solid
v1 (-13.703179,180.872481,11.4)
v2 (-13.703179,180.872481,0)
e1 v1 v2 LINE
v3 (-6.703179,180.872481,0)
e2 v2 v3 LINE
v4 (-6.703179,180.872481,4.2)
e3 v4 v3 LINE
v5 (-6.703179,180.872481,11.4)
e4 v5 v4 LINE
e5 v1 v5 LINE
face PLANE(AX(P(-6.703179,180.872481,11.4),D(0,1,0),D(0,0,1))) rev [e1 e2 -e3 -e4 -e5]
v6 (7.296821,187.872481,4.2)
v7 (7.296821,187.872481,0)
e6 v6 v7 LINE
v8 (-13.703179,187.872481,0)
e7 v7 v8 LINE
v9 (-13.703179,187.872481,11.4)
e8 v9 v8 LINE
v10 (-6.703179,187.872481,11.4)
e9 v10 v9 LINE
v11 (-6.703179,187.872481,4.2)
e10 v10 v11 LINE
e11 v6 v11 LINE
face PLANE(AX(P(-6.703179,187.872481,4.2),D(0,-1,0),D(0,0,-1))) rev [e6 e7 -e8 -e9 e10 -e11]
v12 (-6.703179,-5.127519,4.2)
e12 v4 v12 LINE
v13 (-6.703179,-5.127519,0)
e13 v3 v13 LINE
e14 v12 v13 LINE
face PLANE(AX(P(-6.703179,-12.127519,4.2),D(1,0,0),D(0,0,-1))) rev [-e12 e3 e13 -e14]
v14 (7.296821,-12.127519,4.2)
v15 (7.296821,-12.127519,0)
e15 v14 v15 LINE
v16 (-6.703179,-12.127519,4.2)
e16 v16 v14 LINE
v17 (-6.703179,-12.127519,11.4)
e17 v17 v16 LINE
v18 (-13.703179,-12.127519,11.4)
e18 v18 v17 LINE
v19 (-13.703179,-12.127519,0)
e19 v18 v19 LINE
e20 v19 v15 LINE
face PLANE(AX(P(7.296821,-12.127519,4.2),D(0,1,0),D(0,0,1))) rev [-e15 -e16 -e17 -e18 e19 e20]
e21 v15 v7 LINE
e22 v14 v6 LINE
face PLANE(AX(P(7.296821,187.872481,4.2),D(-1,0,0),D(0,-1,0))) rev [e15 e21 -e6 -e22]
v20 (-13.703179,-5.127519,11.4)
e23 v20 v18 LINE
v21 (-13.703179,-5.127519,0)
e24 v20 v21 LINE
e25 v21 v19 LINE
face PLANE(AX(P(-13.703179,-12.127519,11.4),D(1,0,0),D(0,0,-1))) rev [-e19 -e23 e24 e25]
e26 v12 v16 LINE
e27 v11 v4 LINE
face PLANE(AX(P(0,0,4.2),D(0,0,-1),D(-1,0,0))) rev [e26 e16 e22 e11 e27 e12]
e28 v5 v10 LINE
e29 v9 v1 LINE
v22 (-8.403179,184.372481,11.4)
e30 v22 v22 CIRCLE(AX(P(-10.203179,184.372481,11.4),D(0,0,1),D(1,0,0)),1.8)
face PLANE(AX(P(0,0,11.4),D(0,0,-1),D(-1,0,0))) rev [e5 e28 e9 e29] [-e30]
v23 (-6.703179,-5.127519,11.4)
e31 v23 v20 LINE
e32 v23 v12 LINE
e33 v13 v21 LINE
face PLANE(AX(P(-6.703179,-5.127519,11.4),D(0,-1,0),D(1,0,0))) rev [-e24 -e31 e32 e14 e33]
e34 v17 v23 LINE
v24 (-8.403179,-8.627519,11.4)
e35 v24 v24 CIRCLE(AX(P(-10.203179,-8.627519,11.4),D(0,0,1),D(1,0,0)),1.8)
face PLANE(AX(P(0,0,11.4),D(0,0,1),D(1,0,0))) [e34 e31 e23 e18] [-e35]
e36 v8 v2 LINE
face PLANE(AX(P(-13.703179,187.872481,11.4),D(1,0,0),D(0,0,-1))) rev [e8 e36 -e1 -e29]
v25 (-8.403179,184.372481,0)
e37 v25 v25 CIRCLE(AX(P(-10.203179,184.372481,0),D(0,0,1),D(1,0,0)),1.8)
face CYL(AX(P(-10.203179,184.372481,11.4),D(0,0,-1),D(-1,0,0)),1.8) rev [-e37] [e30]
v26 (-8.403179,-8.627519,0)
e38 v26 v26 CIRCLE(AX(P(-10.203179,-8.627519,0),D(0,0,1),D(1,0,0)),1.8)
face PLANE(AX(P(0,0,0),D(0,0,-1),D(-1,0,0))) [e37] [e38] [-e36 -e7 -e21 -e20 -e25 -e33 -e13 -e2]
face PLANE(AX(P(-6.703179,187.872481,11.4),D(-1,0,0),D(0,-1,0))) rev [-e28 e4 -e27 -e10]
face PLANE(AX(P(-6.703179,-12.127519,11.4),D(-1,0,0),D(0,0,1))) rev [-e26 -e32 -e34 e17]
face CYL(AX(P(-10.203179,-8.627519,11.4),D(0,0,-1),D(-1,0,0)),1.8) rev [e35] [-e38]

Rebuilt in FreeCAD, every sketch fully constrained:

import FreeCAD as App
import Part
import Sketcher
Q = App.Units.Quantity

doc = App.newDocument("Part")
params = doc.addObject("Spreadsheet::Sheet", "Params")
for row, (alias, value) in enumerate([
    ("sketch1_width", "14 mm"),
    ("sketch1_height", "200 mm"),
    ("pad1_length", "4.2 mm"),
    ("sketch2_diameter", "3.6 mm"),
    ("sketch2_width", "7 mm"),
    ("pad2_length", "11.4 mm"),
], start=1):
    params.set(f"A{row}", alias)
    params.set(f"B{row}", "=" + value)
    params.setAlias(f"B{row}", alias)

body = doc.addObject("PartDesign::Body", "Body")

# Sketch on XY plane
sketch1 = body.newObject("Sketcher::SketchObject", "Sketch")
sketch1.AttachmentSupport = (doc.getObject("XY_Plane"), [""])
sketch1.MapMode = "FlatFace"
sketch1.addGeometry([
    Part.LineSegment(App.Vector(-6.703179, 187.872481, 0), App.Vector(-6.703179, -12.127519, 0)),
    Part.LineSegment(App.Vector(-6.703179, -12.127519, 0), App.Vector(7.296821, -12.127519, 0)),
    Part.LineSegment(App.Vector(7.296821, -12.127519, 0), App.Vector(7.296821, 187.872481, 0)),
    Part.LineSegment(App.Vector(7.296821, 187.872481, 0), App.Vector(-6.703179, 187.872481, 0)),
], False)
sketch1.addConstraint([
    Sketcher.Constraint("Coincident", 0, 2, 1, 1),
    Sketcher.Constraint("Coincident", 1, 2, 2, 1),
    Sketcher.Constraint("Coincident", 2, 2, 3, 1),
    Sketcher.Constraint("Coincident", 3, 2, 0, 1),
    Sketcher.Constraint("Vertical", 0),
    Sketcher.Constraint("Horizontal", 1),
    Sketcher.Constraint("Vertical", 2),
    Sketcher.Constraint("Horizontal", 3),
    Sketcher.Constraint("DistanceX", 1, 1, 1, 2, Q("14 mm")),
    Sketcher.Constraint("DistanceY", 0, 2, 0, 1, Q("200 mm")),
    Sketcher.Constraint("DistanceX", 0, 2, -1, 1, Q("6.703179 mm")),
    Sketcher.Constraint("DistanceY", 0, 2, -1, 1, Q("12.127519 mm")),
])
sketch1.setExpression("Constraints[8]", "Params.sketch1_width")
sketch1.setExpression("Constraints[9]", "Params.sketch1_height")
pad1 = body.newObject("PartDesign::Pad", "Pad")
pad1.Profile = sketch1
pad1.setExpression("Length", "Params.pad1_length")

# Sketch on XY plane
sketch2 = body.newObject("Sketcher::SketchObject", "Sketch001")
sketch2.AttachmentSupport = (doc.getObject("XY_Plane"), [""])
sketch2.MapMode = "FlatFace"
sketch2.addGeometry([
    Part.LineSegment(App.Vector(-13.703179, -5.127519, 0), App.Vector(-13.703179, -12.127519, 0)),  # 0
    Part.LineSegment(App.Vector(-13.703179, -12.127519, 0), App.Vector(-6.703179, -12.127519, 0)),  # 1
    Part.LineSegment(App.Vector(-6.703179, -12.127519, 0), App.Vector(-6.703179, -5.127519, 0)),  # 2
    Part.LineSegment(App.Vector(-6.703179, -5.127519, 0), App.Vector(-13.703179, -5.127519, 0)),  # 3
    Part.Circle(App.Vector(-10.203179, -8.627519, 0), App.Vector(0, 0, 1), 1.8),  # 4
    Part.LineSegment(App.Vector(-13.703179, 187.872481, 0), App.Vector(-13.703179, 180.872481, 0)),  # 5
    Part.LineSegment(App.Vector(-13.703179, 180.872481, 0), App.Vector(-6.703179, 180.872481, 0)),  # 6
    Part.LineSegment(App.Vector(-6.703179, 180.872481, 0), App.Vector(-6.703179, 187.872481, 0)),  # 7
    Part.LineSegment(App.Vector(-6.703179, 187.872481, 0), App.Vector(-13.703179, 187.872481, 0)),  # 8
    Part.Circle(App.Vector(-10.203179, 184.372481, 0), App.Vector(0, 0, 1), 1.8),  # 9
], False)
sketch2.addConstraint([
    Sketcher.Constraint("Coincident", 0, 2, 1, 1),
    Sketcher.Constraint("Coincident", 1, 2, 2, 1),
    Sketcher.Constraint("Coincident", 2, 2, 3, 1),
    Sketcher.Constraint("Coincident", 3, 2, 0, 1),
    Sketcher.Constraint("Coincident", 5, 2, 6, 1),
    Sketcher.Constraint("Coincident", 6, 2, 7, 1),
    Sketcher.Constraint("Coincident", 7, 2, 8, 1),
    Sketcher.Constraint("Coincident", 8, 2, 5, 1),
    Sketcher.Constraint("Vertical", 0),
    Sketcher.Constraint("Horizontal", 1),
    Sketcher.Constraint("Vertical", 2),
    Sketcher.Constraint("Horizontal", 3),
    Sketcher.Constraint("Vertical", 5),
    Sketcher.Constraint("Horizontal", 6),
    Sketcher.Constraint("Vertical", 7),
    Sketcher.Constraint("Horizontal", 8),
    Sketcher.Constraint("Equal", 4, 9),
    Sketcher.Constraint("Vertical", 4, 3, 9, 3),
    Sketcher.Constraint("Vertical", 3, 2, 5, 2),
    Sketcher.Constraint("Vertical", 2, 2, 6, 2),
    Sketcher.Constraint("Equal", 8, 0),
    Sketcher.Constraint("Equal", 2, 5),
    Sketcher.Constraint("Diameter", 4, Q("3.6 mm")),
    Sketcher.Constraint("DistanceX", 1, 1, 1, 2, Q("7 mm")),
    Sketcher.Constraint("DistanceY", 4, 3, 9, 3, Q("193 mm")),
    Sketcher.Constraint("DistanceY", 3, 2, 5, 2, Q("186 mm")),
    Sketcher.Constraint("DistanceX", 0, 2, 4, 3, Q("3.5 mm")),
    Sketcher.Constraint("DistanceY", 0, 2, 4, 3, Q("3.5 mm")),
    Sketcher.Constraint("DistanceX", 4, 3, -1, 1, Q("10.203179 mm")),
    Sketcher.Constraint("DistanceY", 4, 3, -1, 1, Q("8.627519 mm")),
])
sketch2.setExpression("Constraints[22]", "Params.sketch2_diameter")
sketch2.setExpression("Constraints[23]", "Params.sketch2_width")
pad2 = body.newObject("PartDesign::Pad", "Pad001")
pad2.Profile = sketch2
pad2.setExpression("Length", "Params.pad2_length")

doc.recompute()
